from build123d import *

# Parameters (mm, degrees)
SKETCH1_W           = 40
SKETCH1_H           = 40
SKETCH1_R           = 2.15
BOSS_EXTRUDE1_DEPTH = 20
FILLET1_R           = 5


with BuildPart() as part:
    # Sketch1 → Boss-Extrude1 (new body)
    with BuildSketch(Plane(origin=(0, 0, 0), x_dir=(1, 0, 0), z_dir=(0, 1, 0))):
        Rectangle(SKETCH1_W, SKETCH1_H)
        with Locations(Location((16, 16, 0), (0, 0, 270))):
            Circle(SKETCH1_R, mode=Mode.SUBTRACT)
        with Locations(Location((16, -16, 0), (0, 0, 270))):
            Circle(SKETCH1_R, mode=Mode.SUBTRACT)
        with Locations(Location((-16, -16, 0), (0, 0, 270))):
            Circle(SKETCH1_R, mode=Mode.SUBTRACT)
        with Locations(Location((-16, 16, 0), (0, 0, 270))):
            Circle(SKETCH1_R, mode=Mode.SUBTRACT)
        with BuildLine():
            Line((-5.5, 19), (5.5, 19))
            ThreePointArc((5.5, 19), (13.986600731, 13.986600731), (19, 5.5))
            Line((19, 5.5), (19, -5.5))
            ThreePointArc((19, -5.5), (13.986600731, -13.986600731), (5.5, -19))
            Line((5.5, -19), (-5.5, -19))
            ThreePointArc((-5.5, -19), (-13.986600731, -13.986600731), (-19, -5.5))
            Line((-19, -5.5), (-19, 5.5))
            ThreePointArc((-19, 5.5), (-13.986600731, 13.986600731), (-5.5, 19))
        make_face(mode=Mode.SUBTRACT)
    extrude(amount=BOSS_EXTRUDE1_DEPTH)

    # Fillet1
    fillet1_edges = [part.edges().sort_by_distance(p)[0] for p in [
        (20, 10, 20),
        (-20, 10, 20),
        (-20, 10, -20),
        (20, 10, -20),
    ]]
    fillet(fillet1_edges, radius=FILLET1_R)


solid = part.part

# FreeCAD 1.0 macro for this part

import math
import FreeCAD as App
import Part
import Sketcher

V = App.Vector


def edges_at(feature, points):
    """Names of the edges that pass closest to the given points."""
    edges = feature.Shape.Edges
    near = lambda p: min(range(len(edges)), key=lambda i: edges[i].distToShape(Part.Vertex(*p))[0])
    return sorted({f"Edge{near(p) + 1}" for p in points})


def add_polygon(sketch, points):
    """Adds a closed chain of lines whose ends are joined by coincident constraints."""
    first, n = sketch.GeometryCount, len(points)
    for a, b in zip(points, points[1:] + points[:1]):
        sketch.addGeometry(Part.LineSegment(App.Vector(*a, 0), App.Vector(*b, 0)), False)
    for i in range(n):
        sketch.addConstraint(Sketcher.Constraint("Coincident", first + i, 2, first + (i + 1) % n, 1))

doc = App.newDocument("Part")
body = doc.addObject("PartDesign::Body", "Body")

sketch1 = body.newObject("Sketcher::SketchObject", "Sketch")
sketch1.AttachmentSupport = (doc.getObject("XZ_Plane"), [""])
sketch1.MapMode = "FlatFace"
add_polygon(sketch1, [(-20, -20), (-20, 20), (20, 20), (20, -20)])
sketch1.addGeometry(Part.Circle(V(-16, 16, 0), V(0, 0, 1), 2.1), False)
sketch1.addGeometry(Part.Circle(V(16, 16, 0), V(0, 0, 1), 2.1), False)
sketch1.addGeometry(Part.Circle(V(-16, -16, 0), V(0, 0, 1), 2.1), False)
sketch1.addGeometry(Part.ArcOfCircle(Part.Circle(V(0, 0, 0), V(0, 0, 1), 19.8), math.radians(-164), math.radians(-106)), False)
sketch1.addGeometry(Part.LineSegment(V(-5.5, -19, 0), V(5.5, -19, 0)), False)
sketch1.addGeometry(Part.ArcOfCircle(Part.Circle(V(0, 0, 0), V(0, 0, 1), 19.8), math.radians(-74), math.radians(-16)), False)
sketch1.addGeometry(Part.LineSegment(V(19, -5.5, 0), V(19, 5.5, 0)), False)
sketch1.addGeometry(Part.ArcOfCircle(Part.Circle(V(0, 0, 0), V(0, 0, 1), 19.8), math.radians(16), math.radians(74)), False)
sketch1.addGeometry(Part.LineSegment(V(5.5, 19, 0), V(-5.5, 19, 0)), False)
sketch1.addGeometry(Part.ArcOfCircle(Part.Circle(V(0, 0, 0), V(0, 0, 1), 19.8), math.radians(106), math.radians(164)), False)
sketch1.addGeometry(Part.LineSegment(V(-19, 5.5, 0), V(-19, -5.5, 0)), False)
sketch1.addGeometry(Part.Circle(V(16, -16, 0), V(0, 0, 1), 2.1), False)
sketch1.addConstraint(Sketcher.Constraint("Coincident", 7, 2, 8, 1))
sketch1.addConstraint(Sketcher.Constraint("Coincident", 8, 2, 9, 1))
sketch1.addConstraint(Sketcher.Constraint("Coincident", 9, 2, 10, 1))
sketch1.addConstraint(Sketcher.Constraint("Coincident", 10, 2, 11, 1))
sketch1.addConstraint(Sketcher.Constraint("Coincident", 11, 2, 12, 1))
sketch1.addConstraint(Sketcher.Constraint("Coincident", 12, 2, 13, 1))
sketch1.addConstraint(Sketcher.Constraint("Coincident", 13, 2, 14, 1))
sketch1.addConstraint(Sketcher.Constraint("Coincident", 14, 2, 7, 1))
sketch1.addConstraint(Sketcher.Constraint("Vertical", 0))
sketch1.addConstraint(Sketcher.Constraint("Horizontal", 1))
sketch1.addConstraint(Sketcher.Constraint("Vertical", 2))
sketch1.addConstraint(Sketcher.Constraint("Horizontal", 3))
sketch1.addConstraint(Sketcher.Constraint("Horizontal", 8))
sketch1.addConstraint(Sketcher.Constraint("Vertical", 10))
sketch1.addConstraint(Sketcher.Constraint("Horizontal", 12))
sketch1.addConstraint(Sketcher.Constraint("Vertical", 14))
sketch1.addConstraint(Sketcher.Constraint("Coincident", 7, 3, -1, 1))
sketch1.addConstraint(Sketcher.Constraint("Coincident", 9, 3, -1, 1))
sketch1.addConstraint(Sketcher.Constraint("Coincident", 11, 3, -1, 1))
sketch1.addConstraint(Sketcher.Constraint("Coincident", 13, 3, -1, 1))
sketch1.addConstraint(Sketcher.Constraint("Equal", 4, 5))
sketch1.addConstraint(Sketcher.Constraint("Equal", 5, 6))
sketch1.addConstraint(Sketcher.Constraint("Equal", 7, 9))
sketch1.addConstraint(Sketcher.Constraint("Equal", 9, 11))
sketch1.addConstraint(Sketcher.Constraint("Equal", 11, 13))
sketch1.addConstraint(Sketcher.Constraint("Equal", 6, 15))
sketch1.addConstraint(Sketcher.Constraint("Symmetric", 5, 3, 6, 3, -1, 1))
sketch1.addConstraint(Sketcher.Constraint("Symmetric", 4, 3, 15, 3, -1, 1))
sketch1.addConstraint(Sketcher.Constraint("Symmetric", 0, 2, 2, 2, -1, 1))
sketch1.addConstraint(Sketcher.Constraint("Symmetric", 4, 3, 5, 3, -2))
sketch1.addConstraint(Sketcher.Constraint("Horizontal", 10, 2, 13, 2))
sketch1.addConstraint(Sketcher.Constraint("Vertical", 8, 2, 11, 2))
sketch1.addConstraint(Sketcher.Constraint("Equal", 3, 0))
sketch1.addConstraint(Sketcher.Constraint("Equal", 12, 10))
sketch1.addConstraint(Sketcher.Constraint("Diameter", 4, 4.3))
sketch1.addConstraint(Sketcher.Constraint("DistanceX", 1, 1, 1, 2, 40.0))
sketch1.addConstraint(Sketcher.Constraint("DistanceX", 8, 1, 8, 2, 11.0))
sketch1.addConstraint(Sketcher.Constraint("DistanceX", 4, 3, -1, 1, 16.0))
sketch1.addConstraint(Sketcher.Constraint("DistanceY", -1, 1, 4, 3, 16.0))
sketch1.addConstraint(Sketcher.Constraint("DistanceY", 7, 2, -1, 1, 19.0))
pad1 = body.newObject("PartDesign::Pad", "Pad")
pad1.Profile = sketch1
pad1.Length = 20
pad1.Reversed = True
doc.recompute()

fillet = body.newObject("PartDesign::Fillet", "Fillet")
fillet.Base = (pad1, edges_at(pad1, [
    (20, 10, 20),
    (-20, 10, 20),
    (-20, 10, -20),
    (20, 10, -20),
]))
fillet.Radius = 5

doc.recompute()
